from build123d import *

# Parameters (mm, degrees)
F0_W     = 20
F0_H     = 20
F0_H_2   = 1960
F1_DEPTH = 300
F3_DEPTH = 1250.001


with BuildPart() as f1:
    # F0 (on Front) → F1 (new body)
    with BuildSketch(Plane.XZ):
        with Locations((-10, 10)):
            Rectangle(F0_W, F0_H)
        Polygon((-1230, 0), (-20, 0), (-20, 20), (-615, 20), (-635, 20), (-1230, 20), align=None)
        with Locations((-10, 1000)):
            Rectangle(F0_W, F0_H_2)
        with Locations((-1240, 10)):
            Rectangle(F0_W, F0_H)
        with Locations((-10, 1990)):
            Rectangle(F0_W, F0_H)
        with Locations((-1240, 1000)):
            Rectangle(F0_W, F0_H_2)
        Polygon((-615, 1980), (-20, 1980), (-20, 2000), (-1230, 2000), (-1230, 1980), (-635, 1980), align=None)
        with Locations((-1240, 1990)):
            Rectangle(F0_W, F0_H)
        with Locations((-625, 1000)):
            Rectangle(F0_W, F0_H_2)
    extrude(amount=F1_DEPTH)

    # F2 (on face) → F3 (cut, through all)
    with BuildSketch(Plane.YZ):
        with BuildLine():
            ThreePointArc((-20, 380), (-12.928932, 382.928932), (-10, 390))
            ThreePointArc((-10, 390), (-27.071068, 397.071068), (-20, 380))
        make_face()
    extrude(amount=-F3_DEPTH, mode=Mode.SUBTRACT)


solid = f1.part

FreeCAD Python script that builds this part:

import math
import FreeCAD as App
import Part
import Sketcher
from FreeCAD import Vector

doc = App.newDocument("Part")
body = doc.addObject("PartDesign::Body", "Body")

sketch1 = body.newObject("Sketcher::SketchObject", "Sketch")
sketch1.AttachmentSupport = (doc.getObject("XZ_Plane"), [""])
sketch1.MapMode = "FlatFace"
sketch1.addGeometry([
    Part.LineSegment(Vector(0, 2000, 0), Vector(-1250, 2000, 0)),
    Part.LineSegment(Vector(-1250, 2000, 0), Vector(-1250, 0, 0)),
    Part.LineSegment(Vector(-1250, 0, 0), Vector(0, 0, 0)),
    Part.LineSegment(Vector(0, 0, 0), Vector(0, 2000, 0)),
    Part.LineSegment(Vector(-1230, 20, 0), Vector(-1230, 1980, 0)),
    Part.LineSegment(Vector(-1230, 1980, 0), Vector(-635, 1980, 0)),
    Part.LineSegment(Vector(-635, 1980, 0), Vector(-635, 20, 0)),
    Part.LineSegment(Vector(-635, 20, 0), Vector(-1230, 20, 0)),
    Part.LineSegment(Vector(-615, 1980, 0), Vector(-20, 1980, 0)),
    Part.LineSegment(Vector(-20, 1980, 0), Vector(-20, 20, 0)),
    Part.LineSegment(Vector(-20, 20, 0), Vector(-615, 20, 0)),
    Part.LineSegment(Vector(-615, 20, 0), Vector(-615, 1980, 0)),
], False)
sketch1.addConstraint([
    Sketcher.Constraint("Coincident", 0, 2, 1, 1),
    Sketcher.Constraint("Coincident", 1, 2, 2, 1),
    Sketcher.Constraint("Coincident", 2, 2, 3, 1),
    Sketcher.Constraint("Coincident", 3, 2, 0, 1),
    Sketcher.Constraint("Coincident", 4, 2, 5, 1),
    Sketcher.Constraint("Coincident", 5, 2, 6, 1),
    Sketcher.Constraint("Coincident", 6, 2, 7, 1),
    Sketcher.Constraint("Coincident", 7, 2, 4, 1),
    Sketcher.Constraint("Coincident", 8, 2, 9, 1),
    Sketcher.Constraint("Coincident", 9, 2, 10, 1),
    Sketcher.Constraint("Coincident", 10, 2, 11, 1),
    Sketcher.Constraint("Coincident", 11, 2, 8, 1),
    Sketcher.Constraint("Horizontal", 0),
    Sketcher.Constraint("Vertical", 1),
    Sketcher.Constraint("Horizontal", 2),
    Sketcher.Constraint("Vertical", 3),
    Sketcher.Constraint("Vertical", 4),
    Sketcher.Constraint("Horizontal", 5),
    Sketcher.Constraint("Vertical", 6),
    Sketcher.Constraint("Horizontal", 7),
    Sketcher.Constraint("Horizontal", 8),
    Sketcher.Constraint("Vertical", 9),
    Sketcher.Constraint("Horizontal", 10),
    Sketcher.Constraint("Vertical", 11),
    Sketcher.Constraint("Coincident", 2, 2, -1, 1),
    Sketcher.Constraint("Horizontal", 5, 2, 8, 2),
    Sketcher.Constraint("Horizontal", 7, 2, 9, 2),
    Sketcher.Constraint("Equal", 7, 8),
    Sketcher.Constraint("DistanceX", 0, 2, 0, 1, 1250.0),
    Sketcher.Constraint("DistanceX", 5, 1, 5, 2, 595.0),
    Sketcher.Constraint("DistanceY", 1, 2, 1, 1, 2000.0),
    Sketcher.Constraint("DistanceY", 4, 1, 4, 2, 1960.0),
    Sketcher.Constraint("DistanceX", 4, 2, -1, 1, 1230.0),
    Sketcher.Constraint("DistanceY", -1, 1, 4, 2, 1980.0),
    Sketcher.Constraint("DistanceX", 8, 2, -1, 1, 20.0),
])
pad1 = body.newObject("PartDesign::Pad", "Pad")
pad1.Profile = sketch1
pad1.Length = 300

sketch2 = body.newObject("Sketcher::SketchObject", "Sketch001")
sketch2.AttachmentSupport = (doc.getObject("YZ_Plane"), [""])
sketch2.MapMode = "FlatFace"
sketch2.addGeometry([
    Part.ArcOfCircle(Part.Circle(Vector(-20, 390, 0), Vector(0, 0, 1), 10), math.radians(-90), math.radians(0)),
    Part.ArcOfCircle(Part.Circle(Vector(-20, 390, 0), Vector(0, 0, 1), 10), math.radians(0), math.radians(270)),
], False)
sketch2.addConstraint([
    Sketcher.Constraint("Tangent", 0, 1, 1, 2),
    Sketcher.Constraint("Coincident", 1, 1, 0, 2),
    Sketcher.Constraint("Horizontal", 0, 3, 1, 1),
    Sketcher.Constraint("Vertical", 1, 3, 0, 1),
    Sketcher.Constraint("Radius", 0, 9.999999),
    Sketcher.Constraint("DistanceX", 0, 3, -1, 1, 19.999999),
    Sketcher.Constraint("DistanceY", -1, 1, 0, 3, 389.999999),
])
pocket1 = body.newObject("PartDesign::Pocket", "Pocket")
pocket1.Profile = sketch2
pocket1.Type = "ThroughAll"

doc.recompute()
